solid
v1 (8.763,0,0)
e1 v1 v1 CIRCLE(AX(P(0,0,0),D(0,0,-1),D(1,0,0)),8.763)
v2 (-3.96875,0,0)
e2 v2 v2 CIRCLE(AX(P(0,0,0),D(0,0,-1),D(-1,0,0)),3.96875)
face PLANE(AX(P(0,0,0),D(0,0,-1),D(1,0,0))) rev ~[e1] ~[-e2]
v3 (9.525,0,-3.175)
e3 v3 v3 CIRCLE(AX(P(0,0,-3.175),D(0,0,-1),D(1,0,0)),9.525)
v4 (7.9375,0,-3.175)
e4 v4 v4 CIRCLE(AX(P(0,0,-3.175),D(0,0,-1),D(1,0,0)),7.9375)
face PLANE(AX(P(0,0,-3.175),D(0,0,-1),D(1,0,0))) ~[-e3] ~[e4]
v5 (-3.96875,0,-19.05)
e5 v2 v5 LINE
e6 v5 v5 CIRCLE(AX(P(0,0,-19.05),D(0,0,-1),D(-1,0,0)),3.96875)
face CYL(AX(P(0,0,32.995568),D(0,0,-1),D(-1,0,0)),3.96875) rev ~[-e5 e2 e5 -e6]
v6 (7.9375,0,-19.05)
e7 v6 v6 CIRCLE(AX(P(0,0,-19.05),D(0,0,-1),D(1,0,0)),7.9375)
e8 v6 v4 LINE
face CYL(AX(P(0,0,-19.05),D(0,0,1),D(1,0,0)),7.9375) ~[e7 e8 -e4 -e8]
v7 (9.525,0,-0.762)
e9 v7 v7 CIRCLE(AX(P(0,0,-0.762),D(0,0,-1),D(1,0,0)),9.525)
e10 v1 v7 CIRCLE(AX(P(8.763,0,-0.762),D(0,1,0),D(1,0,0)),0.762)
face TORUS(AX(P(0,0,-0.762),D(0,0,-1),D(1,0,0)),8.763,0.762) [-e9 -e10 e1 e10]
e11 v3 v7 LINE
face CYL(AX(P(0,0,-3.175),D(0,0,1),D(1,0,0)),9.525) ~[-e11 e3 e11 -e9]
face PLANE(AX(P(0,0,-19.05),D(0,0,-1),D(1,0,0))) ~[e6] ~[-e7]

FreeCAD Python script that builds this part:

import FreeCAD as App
import Part
import Sketcher

V = App.Vector
Q = App.Units.Quantity


def edges_at(feature, points):
    """Names of the edges that pass closest to the given points."""
    edges = feature.Shape.Edges
    near = lambda p: min(range(len(edges)), key=lambda i: edges[i].distToShape(Part.Vertex(*p))[0])
    return sorted({f"Edge{near(p) + 1}" for p in points})


def add_polygon(sketch, points):
    """Adds a closed chain of lines whose ends are joined by coincident constraints."""
    first, n = sketch.GeometryCount, len(points)
    for a, b in zip(points, points[1:] + points[:1]):
        sketch.addGeometry(Part.LineSegment(App.Vector(*a, 0), App.Vector(*b, 0)), False)
    for i in range(n):
        sketch.addConstraint(Sketcher.Constraint("Coincident", first + i, 2, first + (i + 1) % n, 1))

doc = App.newDocument("Part")
body = doc.addObject("PartDesign::Body", "Body")

# Sketch on XZ plane
sketch1 = doc.addObject("Sketcher::SketchObject", "Sketch")
body.addObject(sketch1)
sketch1.AttachmentSupport = (doc.XZ_Plane, [""])
sketch1.MapMode = "FlatFace"
add_polygon(sketch1, [(9.5, 0), (0, 0), (0, -19.1), (7.9, -19.1), (7.9, -3.2), (9.5, -3.2)])  # lines 0-5
sketch1.addConstraint([
    Sketcher.Constraint("Horizontal", 0),
    Sketcher.Constraint("Vertical", 1),
    Sketcher.Constraint("Horizontal", 2),
    Sketcher.Constraint("Vertical", 3),
    Sketcher.Constraint("Horizontal", 4),
    Sketcher.Constraint("Vertical", 5),
    Sketcher.Constraint("Coincident", 0, 2, -1, 1),
    Sketcher.Constraint("DistanceY", 1, 2, 1, 1, Q("0.75 in")),
    Sketcher.Constraint("DistanceX", 0, 2, 0, 1, Q("0.375 in")),
    Sketcher.Constraint("DistanceX", 2, 1, 2, 2, Q("0.3125 in")),
    Sketcher.Constraint("DistanceY", 3, 1, 3, 2, Q("0.625 in")),
])
revolution = doc.addObject("PartDesign::Revolution", "Revolution")
body.addObject(revolution)
revolution.Profile = sketch1
revolution.ReferenceAxis = (sketch1, ["V_Axis"])
revolution.Angle = 360
doc.recompute()

fillet = doc.addObject("PartDesign::Fillet", "Fillet")
body.addObject(fillet)
fillet.Base = (revolution, edges_at(revolution, [(-9.525, 0, 0)]))
fillet.Radius = Q("0.03 in")

# Sketch on XY plane
sketch2 = doc.addObject("Sketcher::SketchObject", "Sketch001")
body.addObject(sketch2)
sketch2.AttachmentSupport = (doc.XY_Plane, [""])
sketch2.MapMode = "FlatFace"
sketch2.addGeometry(Part.Circle(V(0, 0, 0), V(0, 0, 1), 4), False)
sketch2.addConstraint([
    Sketcher.Constraint("Coincident", 0, 3, -1, 1),
    Sketcher.Constraint("Diameter", 0, Q("0.3125 in")),
])
doc.recompute()
hole = doc.addObject("PartDesign::Hole", "Hole")
body.addObject(hole)
hole.Profile = sketch2
hole.ThreadType = "None"
hole.Diameter = Q("0.3125 in")
hole.DepthType = "ThroughAll"

doc.recompute()
